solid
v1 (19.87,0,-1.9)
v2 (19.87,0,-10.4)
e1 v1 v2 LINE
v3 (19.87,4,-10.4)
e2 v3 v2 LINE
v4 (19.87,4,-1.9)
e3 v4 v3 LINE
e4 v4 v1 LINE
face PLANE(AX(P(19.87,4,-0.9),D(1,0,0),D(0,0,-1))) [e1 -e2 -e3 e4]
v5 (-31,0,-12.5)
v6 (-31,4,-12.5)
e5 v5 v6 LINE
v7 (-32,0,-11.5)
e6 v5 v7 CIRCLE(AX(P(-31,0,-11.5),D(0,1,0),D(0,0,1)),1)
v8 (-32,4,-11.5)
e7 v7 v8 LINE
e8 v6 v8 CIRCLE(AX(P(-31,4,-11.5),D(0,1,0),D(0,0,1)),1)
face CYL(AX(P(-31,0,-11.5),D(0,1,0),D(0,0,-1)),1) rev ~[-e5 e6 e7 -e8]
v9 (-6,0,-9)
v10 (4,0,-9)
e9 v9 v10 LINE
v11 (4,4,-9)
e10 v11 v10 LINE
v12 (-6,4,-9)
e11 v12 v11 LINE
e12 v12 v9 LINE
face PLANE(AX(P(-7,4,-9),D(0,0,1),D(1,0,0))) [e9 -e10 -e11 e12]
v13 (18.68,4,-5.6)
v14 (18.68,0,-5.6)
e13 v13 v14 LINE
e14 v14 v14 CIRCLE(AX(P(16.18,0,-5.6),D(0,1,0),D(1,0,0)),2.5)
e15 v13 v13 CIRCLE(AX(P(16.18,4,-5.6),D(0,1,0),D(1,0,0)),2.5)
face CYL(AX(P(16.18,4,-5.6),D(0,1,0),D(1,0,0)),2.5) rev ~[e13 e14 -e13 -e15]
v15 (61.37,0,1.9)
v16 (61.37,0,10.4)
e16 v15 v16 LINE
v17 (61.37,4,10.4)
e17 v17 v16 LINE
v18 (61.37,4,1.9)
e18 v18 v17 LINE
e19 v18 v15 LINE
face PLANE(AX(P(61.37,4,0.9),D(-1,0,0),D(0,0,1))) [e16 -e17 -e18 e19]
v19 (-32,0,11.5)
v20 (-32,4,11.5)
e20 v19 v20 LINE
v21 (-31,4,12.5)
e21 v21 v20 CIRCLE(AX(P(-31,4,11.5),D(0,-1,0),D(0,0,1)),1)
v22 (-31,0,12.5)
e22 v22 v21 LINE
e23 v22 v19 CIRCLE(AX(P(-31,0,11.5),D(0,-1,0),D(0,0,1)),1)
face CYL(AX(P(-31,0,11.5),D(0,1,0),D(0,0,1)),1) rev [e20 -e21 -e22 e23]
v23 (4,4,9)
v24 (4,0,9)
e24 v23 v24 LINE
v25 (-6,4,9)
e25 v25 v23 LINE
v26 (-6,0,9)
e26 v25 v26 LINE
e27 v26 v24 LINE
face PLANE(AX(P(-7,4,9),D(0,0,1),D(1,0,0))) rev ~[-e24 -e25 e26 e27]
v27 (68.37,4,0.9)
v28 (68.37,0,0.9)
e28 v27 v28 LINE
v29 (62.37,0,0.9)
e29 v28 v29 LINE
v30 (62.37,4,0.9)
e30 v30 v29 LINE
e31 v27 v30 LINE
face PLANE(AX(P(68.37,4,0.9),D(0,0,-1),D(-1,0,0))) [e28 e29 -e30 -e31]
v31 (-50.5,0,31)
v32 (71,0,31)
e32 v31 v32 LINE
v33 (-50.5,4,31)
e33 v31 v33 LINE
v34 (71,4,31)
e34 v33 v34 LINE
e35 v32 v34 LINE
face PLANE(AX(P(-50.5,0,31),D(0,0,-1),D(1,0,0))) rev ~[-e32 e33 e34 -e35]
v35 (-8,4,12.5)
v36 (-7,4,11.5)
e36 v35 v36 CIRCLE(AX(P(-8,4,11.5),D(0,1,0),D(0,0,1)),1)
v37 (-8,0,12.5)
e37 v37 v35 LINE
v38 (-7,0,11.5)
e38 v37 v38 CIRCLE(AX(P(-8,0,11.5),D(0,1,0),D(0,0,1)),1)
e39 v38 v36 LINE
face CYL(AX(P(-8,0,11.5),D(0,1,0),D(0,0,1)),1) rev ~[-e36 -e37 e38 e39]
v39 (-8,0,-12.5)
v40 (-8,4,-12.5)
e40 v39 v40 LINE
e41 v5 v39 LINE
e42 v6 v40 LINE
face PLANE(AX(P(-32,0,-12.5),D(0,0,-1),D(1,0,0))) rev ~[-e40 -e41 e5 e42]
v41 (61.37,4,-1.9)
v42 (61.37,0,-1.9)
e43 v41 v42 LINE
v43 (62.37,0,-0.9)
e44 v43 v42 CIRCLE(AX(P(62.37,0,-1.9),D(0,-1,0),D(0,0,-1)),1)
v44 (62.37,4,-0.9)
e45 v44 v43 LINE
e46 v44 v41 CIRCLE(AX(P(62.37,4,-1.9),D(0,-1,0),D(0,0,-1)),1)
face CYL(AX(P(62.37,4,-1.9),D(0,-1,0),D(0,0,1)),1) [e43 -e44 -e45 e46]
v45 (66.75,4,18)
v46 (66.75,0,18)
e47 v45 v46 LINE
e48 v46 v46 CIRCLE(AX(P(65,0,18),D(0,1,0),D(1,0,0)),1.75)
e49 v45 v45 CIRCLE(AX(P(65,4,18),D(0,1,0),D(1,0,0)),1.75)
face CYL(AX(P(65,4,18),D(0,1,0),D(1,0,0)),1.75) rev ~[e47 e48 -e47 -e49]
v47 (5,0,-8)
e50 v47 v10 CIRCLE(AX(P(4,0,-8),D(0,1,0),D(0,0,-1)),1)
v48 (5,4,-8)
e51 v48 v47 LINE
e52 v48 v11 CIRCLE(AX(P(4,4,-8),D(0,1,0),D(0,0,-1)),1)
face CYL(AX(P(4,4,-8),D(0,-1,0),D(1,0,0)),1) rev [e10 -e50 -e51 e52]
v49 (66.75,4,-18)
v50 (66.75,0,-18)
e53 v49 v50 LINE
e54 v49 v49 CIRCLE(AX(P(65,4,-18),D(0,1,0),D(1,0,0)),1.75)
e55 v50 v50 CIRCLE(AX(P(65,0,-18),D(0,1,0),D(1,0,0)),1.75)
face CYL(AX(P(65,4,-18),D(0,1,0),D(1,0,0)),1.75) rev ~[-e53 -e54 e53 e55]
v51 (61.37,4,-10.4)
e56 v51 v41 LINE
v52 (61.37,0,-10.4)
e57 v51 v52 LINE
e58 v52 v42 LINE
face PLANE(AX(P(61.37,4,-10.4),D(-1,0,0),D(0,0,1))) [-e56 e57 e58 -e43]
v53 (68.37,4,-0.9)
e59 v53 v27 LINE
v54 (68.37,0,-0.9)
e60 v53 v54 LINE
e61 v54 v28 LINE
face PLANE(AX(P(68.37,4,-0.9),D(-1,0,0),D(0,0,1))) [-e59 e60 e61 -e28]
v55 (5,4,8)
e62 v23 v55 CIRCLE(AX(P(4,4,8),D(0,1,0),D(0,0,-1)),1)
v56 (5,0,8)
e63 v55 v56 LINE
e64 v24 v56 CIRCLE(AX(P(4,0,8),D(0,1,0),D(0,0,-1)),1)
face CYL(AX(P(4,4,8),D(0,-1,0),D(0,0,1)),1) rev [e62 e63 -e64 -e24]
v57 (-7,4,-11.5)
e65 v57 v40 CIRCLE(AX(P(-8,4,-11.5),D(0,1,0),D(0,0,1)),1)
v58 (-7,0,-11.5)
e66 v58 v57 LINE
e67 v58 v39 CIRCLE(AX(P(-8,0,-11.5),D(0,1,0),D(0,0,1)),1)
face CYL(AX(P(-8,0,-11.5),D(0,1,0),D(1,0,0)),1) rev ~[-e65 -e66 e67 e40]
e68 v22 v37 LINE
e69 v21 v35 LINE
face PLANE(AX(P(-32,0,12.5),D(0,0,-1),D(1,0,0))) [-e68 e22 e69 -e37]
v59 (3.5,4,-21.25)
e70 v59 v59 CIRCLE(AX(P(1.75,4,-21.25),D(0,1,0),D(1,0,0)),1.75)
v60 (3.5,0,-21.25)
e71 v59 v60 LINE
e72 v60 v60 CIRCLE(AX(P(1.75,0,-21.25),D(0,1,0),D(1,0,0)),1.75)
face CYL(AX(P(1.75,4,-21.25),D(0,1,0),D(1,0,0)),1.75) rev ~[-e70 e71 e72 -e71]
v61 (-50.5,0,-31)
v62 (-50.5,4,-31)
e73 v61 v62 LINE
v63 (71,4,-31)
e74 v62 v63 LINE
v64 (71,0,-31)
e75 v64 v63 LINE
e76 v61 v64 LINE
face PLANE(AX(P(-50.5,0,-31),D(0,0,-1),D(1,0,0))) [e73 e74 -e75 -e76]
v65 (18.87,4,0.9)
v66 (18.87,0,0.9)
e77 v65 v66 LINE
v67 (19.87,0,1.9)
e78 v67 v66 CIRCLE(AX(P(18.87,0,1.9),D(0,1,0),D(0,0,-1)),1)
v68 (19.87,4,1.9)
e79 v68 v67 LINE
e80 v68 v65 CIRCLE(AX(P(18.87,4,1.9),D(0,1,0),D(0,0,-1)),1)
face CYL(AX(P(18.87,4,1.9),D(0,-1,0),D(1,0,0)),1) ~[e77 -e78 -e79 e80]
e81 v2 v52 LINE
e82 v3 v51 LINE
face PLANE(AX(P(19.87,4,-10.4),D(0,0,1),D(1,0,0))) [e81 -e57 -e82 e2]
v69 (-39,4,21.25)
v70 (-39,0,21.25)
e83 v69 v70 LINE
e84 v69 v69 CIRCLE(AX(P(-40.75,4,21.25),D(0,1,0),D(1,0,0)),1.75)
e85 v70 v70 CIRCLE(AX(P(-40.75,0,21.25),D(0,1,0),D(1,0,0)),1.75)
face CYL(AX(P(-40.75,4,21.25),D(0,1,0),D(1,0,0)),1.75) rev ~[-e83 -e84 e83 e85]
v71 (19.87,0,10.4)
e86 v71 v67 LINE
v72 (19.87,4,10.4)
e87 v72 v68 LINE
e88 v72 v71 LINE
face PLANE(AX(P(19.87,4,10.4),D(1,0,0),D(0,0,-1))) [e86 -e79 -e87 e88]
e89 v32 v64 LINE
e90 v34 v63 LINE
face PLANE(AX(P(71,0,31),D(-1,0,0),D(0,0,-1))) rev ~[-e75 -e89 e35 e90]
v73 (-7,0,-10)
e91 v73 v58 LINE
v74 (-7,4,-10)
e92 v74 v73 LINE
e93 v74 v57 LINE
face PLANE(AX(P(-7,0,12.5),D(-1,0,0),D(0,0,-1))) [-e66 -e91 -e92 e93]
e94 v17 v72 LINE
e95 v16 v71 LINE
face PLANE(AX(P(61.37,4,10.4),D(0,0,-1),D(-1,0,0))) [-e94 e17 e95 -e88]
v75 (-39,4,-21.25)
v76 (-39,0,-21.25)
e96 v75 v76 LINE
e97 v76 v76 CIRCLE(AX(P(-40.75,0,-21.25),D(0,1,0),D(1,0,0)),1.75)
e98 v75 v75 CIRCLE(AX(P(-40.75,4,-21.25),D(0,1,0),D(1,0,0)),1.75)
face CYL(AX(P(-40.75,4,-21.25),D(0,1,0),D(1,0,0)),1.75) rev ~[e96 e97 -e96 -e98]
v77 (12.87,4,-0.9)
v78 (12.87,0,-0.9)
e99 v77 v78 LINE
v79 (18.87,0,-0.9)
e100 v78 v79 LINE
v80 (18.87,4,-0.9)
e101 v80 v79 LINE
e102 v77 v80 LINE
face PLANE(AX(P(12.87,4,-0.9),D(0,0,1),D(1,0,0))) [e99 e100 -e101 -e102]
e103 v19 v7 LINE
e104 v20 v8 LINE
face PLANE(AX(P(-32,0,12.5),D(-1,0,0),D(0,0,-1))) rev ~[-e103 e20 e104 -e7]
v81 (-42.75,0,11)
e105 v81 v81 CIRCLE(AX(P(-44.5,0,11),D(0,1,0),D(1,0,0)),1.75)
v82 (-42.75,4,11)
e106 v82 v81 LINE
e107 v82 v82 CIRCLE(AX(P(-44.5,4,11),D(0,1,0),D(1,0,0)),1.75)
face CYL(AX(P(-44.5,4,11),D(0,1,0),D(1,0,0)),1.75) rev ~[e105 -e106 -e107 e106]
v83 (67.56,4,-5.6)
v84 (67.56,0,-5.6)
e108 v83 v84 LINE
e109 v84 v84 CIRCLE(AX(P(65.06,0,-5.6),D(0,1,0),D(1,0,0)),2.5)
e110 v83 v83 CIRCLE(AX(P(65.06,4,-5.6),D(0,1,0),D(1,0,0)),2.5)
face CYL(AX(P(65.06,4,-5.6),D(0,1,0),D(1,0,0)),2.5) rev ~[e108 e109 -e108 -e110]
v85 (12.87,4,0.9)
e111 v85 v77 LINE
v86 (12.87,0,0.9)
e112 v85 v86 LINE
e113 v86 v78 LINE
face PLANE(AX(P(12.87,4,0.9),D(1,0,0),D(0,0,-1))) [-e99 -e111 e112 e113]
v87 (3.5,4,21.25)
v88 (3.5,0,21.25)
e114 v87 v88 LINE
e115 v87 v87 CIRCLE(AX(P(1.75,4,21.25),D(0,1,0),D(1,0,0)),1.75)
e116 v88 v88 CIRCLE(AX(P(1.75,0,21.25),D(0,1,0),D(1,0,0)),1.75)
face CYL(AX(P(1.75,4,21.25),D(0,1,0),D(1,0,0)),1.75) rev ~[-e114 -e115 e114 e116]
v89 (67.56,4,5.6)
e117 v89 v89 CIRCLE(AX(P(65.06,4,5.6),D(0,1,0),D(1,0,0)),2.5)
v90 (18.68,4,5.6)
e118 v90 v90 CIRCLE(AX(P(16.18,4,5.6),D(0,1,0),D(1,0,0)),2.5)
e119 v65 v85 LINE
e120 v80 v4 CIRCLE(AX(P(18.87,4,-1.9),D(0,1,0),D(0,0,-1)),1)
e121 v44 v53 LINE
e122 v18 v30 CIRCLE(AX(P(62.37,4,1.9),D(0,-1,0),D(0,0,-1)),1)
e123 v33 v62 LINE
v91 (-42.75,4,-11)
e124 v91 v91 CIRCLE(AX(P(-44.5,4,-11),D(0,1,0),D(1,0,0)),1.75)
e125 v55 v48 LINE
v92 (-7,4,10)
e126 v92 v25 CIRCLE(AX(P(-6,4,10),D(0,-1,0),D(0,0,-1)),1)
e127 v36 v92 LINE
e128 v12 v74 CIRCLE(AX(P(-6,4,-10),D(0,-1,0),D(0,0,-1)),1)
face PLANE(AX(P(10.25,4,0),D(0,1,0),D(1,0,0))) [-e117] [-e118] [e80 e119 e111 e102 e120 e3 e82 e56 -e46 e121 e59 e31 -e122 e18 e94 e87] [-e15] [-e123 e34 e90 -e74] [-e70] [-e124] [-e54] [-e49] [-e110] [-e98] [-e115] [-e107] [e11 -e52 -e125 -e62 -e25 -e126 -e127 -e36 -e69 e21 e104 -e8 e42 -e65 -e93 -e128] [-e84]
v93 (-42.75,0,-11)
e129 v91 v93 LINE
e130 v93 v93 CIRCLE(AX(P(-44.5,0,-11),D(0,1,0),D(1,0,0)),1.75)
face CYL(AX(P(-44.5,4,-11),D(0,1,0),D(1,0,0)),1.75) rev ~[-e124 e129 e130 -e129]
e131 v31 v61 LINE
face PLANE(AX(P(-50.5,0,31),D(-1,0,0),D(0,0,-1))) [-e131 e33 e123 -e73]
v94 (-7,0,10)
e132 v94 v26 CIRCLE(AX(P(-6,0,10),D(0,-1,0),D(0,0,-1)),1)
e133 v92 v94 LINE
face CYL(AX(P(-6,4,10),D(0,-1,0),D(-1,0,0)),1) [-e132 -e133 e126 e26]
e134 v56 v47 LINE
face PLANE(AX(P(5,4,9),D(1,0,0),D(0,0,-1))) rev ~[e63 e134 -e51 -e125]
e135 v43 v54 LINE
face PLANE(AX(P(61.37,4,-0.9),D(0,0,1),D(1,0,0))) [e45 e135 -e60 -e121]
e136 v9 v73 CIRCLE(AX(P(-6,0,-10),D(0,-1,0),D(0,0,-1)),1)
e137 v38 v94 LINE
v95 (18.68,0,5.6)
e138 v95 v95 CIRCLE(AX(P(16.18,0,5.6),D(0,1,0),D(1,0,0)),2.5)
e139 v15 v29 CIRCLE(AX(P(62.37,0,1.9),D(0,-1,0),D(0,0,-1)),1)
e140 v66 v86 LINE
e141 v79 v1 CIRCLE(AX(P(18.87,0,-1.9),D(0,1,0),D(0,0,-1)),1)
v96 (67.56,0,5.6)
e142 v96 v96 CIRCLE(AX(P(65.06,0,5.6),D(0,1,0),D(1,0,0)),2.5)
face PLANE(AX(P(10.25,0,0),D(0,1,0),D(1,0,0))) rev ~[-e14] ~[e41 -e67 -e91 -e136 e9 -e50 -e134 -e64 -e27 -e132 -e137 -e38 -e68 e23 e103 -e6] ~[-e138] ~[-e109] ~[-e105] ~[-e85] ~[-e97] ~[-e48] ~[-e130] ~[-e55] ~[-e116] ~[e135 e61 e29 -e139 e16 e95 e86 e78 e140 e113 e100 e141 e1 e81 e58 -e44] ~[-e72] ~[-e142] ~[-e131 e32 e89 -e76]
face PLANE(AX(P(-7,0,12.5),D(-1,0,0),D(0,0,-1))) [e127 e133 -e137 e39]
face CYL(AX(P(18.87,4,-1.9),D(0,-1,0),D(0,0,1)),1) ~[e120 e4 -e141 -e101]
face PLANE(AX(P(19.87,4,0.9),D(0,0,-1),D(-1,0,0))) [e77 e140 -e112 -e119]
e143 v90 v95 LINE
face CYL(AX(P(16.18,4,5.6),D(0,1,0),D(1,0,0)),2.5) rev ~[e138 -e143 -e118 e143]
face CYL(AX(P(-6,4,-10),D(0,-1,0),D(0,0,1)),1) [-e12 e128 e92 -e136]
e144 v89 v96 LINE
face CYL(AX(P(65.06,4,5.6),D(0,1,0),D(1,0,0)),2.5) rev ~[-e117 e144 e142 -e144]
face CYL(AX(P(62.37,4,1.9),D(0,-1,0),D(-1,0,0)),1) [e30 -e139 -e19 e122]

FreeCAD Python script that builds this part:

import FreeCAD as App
import Part
import Sketcher


def edges_at(feature, points):
    """Names of the edges that pass closest to the given points."""
    edges = feature.Shape.Edges
    near = lambda p: min(range(len(edges)), key=lambda i: edges[i].distToShape(Part.Vertex(*p))[0])
    return sorted({f"Edge{near(p) + 1}" for p in points})


def add_polygon(sketch, points):
    """Adds a closed chain of lines whose ends are joined by coincident constraints."""
    first, n = sketch.GeometryCount, len(points)
    for a, b in zip(points, points[1:] + points[:1]):
        sketch.addGeometry(Part.LineSegment(App.Vector(*a, 0), App.Vector(*b, 0)), False)
    for i in range(n):
        sketch.addConstraint(Sketcher.Constraint("Coincident", first + i, 2, first + (i + 1) % n, 1))

doc = App.newDocument("Part")
body = doc.addObject("PartDesign::Body", "Body")

sketch1 = body.newObject("Sketcher::SketchObject", "Sketch")
sketch1.AttachmentSupport = (doc.getObject("XZ_Plane"), [""])
sketch1.MapMode = "FlatFace"
add_polygon(sketch1, [(-50, -31), (-50, 31), (71, 31), (71, -31)])
add_polygon(sketch1, [(-7, 12), (-32, 12), (-32, -12), (-7, -12)])
sketch1.addConstraint(Sketcher.Constraint("Vertical", 0))
sketch1.addConstraint(Sketcher.Constraint("Horizontal", 1))
sketch1.addConstraint(Sketcher.Constraint("Vertical", 2))
sketch1.addConstraint(Sketcher.Constraint("Horizontal", 3))
sketch1.addConstraint(Sketcher.Constraint("Horizontal", 4))
sketch1.addConstraint(Sketcher.Constraint("Vertical", 5))
sketch1.addConstraint(Sketcher.Constraint("Horizontal", 6))
sketch1.addConstraint(Sketcher.Constraint("Vertical", 7))
sketch1.addConstraint(Sketcher.Constraint("Equal", 6, 5))
sketch1.addConstraint(Sketcher.Constraint("DistanceX", 4, 2, 4, 1, 25.0))
sketch1.addConstraint(Sketcher.Constraint("DistanceY", 0, 1, 0, 2, 62.0))
sketch1.addConstraint(Sketcher.Constraint("DistanceX", 1, 1, 1, 2, 121.5))
sketch1.addConstraint(Sketcher.Constraint("DistanceY", -1, 1, 0, 2, 31.0))
sketch1.addConstraint(Sketcher.Constraint("DistanceX", -1, 1, 1, 2, 71.0))
sketch1.addConstraint(Sketcher.Constraint("DistanceX", 4, 2, -1, 1, 32.0))
sketch1.addConstraint(Sketcher.Constraint("DistanceY", -1, 1, 4, 2, 12.5))
pad1 = body.newObject("PartDesign::Pad", "Pad")
pad1.Profile = sketch1
pad1.Length = 4
pad1.Reversed = True

sketch2 = body.newObject("Sketcher::SketchObject", "Sketch001")
sketch2.AttachmentSupport = (doc.getObject("XZ_Plane"), [""])
sketch2.MapMode = "FlatFace"
sketch2.AttachmentOffset = App.Placement(App.Vector(0, 0, -4), App.Rotation())
sketch2.addGeometry(Part.Circle(App.Vector(16.2, -5.6, 0), App.Vector(0, 0, 1), 2.5), False)
sketch2.addGeometry(Part.Circle(App.Vector(16.2, 5.6, 0), App.Vector(0, 0, 1), 2.5), False)
sketch2.addGeometry(Part.Circle(App.Vector(65.1, 5.6, 0), App.Vector(0, 0, 1), 2.5), False)
sketch2.addGeometry(Part.Circle(App.Vector(65.1, -5.6, 0), App.Vector(0, 0, 1), 2.5), False)
add_polygon(sketch2, [(12.9, 0.9), (19.9, 0.9), (19.9, 10.4), (61.4, 10.4), (61.4, 0.9), (68.4, 0.9), (68.4, -0.9), (61.4, -0.9), (61.4, -10.4), (19.9, -10.4), (19.9, -0.9), (12.9, -0.9)])
sketch2.addConstraint(Sketcher.Constraint("Horizontal", 4))
sketch2.addConstraint(Sketcher.Constraint("Vertical", 5))
sketch2.addConstraint(Sketcher.Constraint("Horizontal", 6))
sketch2.addConstraint(Sketcher.Constraint("Vertical", 7))
sketch2.addConstraint(Sketcher.Constraint("Horizontal", 8))
sketch2.addConstraint(Sketcher.Constraint("Vertical", 9))
sketch2.addConstraint(Sketcher.Constraint("Horizontal", 10))
sketch2.addConstraint(Sketcher.Constraint("Vertical", 11))
sketch2.addConstraint(Sketcher.Constraint("Horizontal", 12))
sketch2.addConstraint(Sketcher.Constraint("Vertical", 13))
sketch2.addConstraint(Sketcher.Constraint("Horizontal", 14))
sketch2.addConstraint(Sketcher.Constraint("Vertical", 15))
sketch2.addConstraint(Sketcher.Constraint("Equal", 0, 1))
sketch2.addConstraint(Sketcher.Constraint("Equal", 1, 2))
sketch2.addConstraint(Sketcher.Constraint("Equal", 2, 3))
sketch2.addConstraint(Sketcher.Constraint("Symmetric", 0, 3, 1, 3, -1))
sketch2.addConstraint(Sketcher.Constraint("Symmetric", 2, 3, 3, 3, -1))
sketch2.addConstraint(Sketcher.Constraint("Symmetric", 7, 2, 10, 2, -1))
sketch2.addConstraint(Sketcher.Constraint("Symmetric", 5, 2, 12, 2, -1))
sketch2.addConstraint(Sketcher.Constraint("Horizontal", 1, 3, 2, 3))
sketch2.addConstraint(Sketcher.Constraint("Horizontal", 4, 2, 7, 2))
sketch2.addConstraint(Sketcher.Constraint("Horizontal", 10, 2, 13, 2))
sketch2.addConstraint(Sketcher.Constraint("Equal", 4, 8))
sketch2.addConstraint(Sketcher.Constraint("Diameter", 0, 5.0))
sketch2.addConstraint(Sketcher.Constraint("DistanceX", 4, 1, 4, 2, 7.0))
sketch2.addConstraint(Sketcher.Constraint("DistanceX", 6, 1, 6, 2, 41.5))
sketch2.addConstraint(Sketcher.Constraint("DistanceY", 5, 1, 5, 2, 9.5))
sketch2.addConstraint(Sketcher.Constraint("DistanceY", 9, 2, 9, 1, 1.8))
sketch2.addConstraint(Sketcher.Constraint("DistanceY", 0, 3, 5, 2, 16.0))
sketch2.addConstraint(Sketcher.Constraint("DistanceX", -1, 1, 0, 3, 16.18))
sketch2.addConstraint(Sketcher.Constraint("DistanceX", -1, 1, 2, 3, 65.06))
sketch2.addConstraint(Sketcher.Constraint("DistanceX", -1, 1, 4, 2, 19.87))
pocket1 = body.newObject("PartDesign::Pocket", "Pocket")
pocket1.Profile = sketch2
pocket1.Type = "ThroughAll"
pocket1.Reversed = True

sketch3 = body.newObject("Sketcher::SketchObject", "Sketch002")
sketch3.AttachmentSupport = (doc.getObject("XZ_Plane"), [""])
sketch3.MapMode = "FlatFace"
sketch3.AttachmentOffset = App.Placement(App.Vector(0, 0, -4), App.Rotation())
sketch3.addGeometry(Part.Circle(App.Vector(-40.8, 21.2, 0), App.Vector(0, 0, 1), 1.8), False)
sketch3.addGeometry(Part.Circle(App.Vector(-44.5, 11, 0), App.Vector(0, 0, 1), 1.8), False)
sketch3.addGeometry(Part.Circle(App.Vector(1.8, 21.2, 0), App.Vector(0, 0, 1), 1.8), False)
sketch3.addGeometry(Part.Circle(App.Vector(1.8, -21.2, 0), App.Vector(0, 0, 1), 1.8), False)
sketch3.addGeometry(Part.Circle(App.Vector(65, -18, 0), App.Vector(0, 0, 1), 1.8), False)
sketch3.addGeometry(Part.Circle(App.Vector(65, 18, 0), App.Vector(0, 0, 1), 1.8), False)
sketch3.addGeometry(Part.Circle(App.Vector(-44.5, -11, 0), App.Vector(0, 0, 1), 1.8), False)
sketch3.addGeometry(Part.Circle(App.Vector(-40.8, -21.2, 0), App.Vector(0, 0, 1), 1.8), False)
sketch3.addConstraint(Sketcher.Constraint("Equal", 0, 1))
sketch3.addConstraint(Sketcher.Constraint("Equal", 1, 2))
sketch3.addConstraint(Sketcher.Constraint("Equal", 2, 3))
sketch3.addConstraint(Sketcher.Constraint("Equal", 3, 4))
sketch3.addConstraint(Sketcher.Constraint("Equal", 4, 5))
sketch3.addConstraint(Sketcher.Constraint("Equal", 5, 6))
sketch3.addConstraint(Sketcher.Constraint("Equal", 6, 7))
sketch3.addConstraint(Sketcher.Constraint("Symmetric", 2, 3, 3, 3, -1))
sketch3.addConstraint(Sketcher.Constraint("Symmetric", 4, 3, 5, 3, -1))
sketch3.addConstraint(Sketcher.Constraint("Symmetric", 1, 3, 6, 3, -1))
sketch3.addConstraint(Sketcher.Constraint("Symmetric", 0, 3, 7, 3, -1))
sketch3.addConstraint(Sketcher.Constraint("Horizontal", 0, 3, 2, 3))
sketch3.addConstraint(Sketcher.Constraint("Diameter", 0, 3.5))
sketch3.addConstraint(Sketcher.Constraint("DistanceY", -1, 1, 1, 3, 11.0))
sketch3.addConstraint(Sketcher.Constraint("DistanceX", -1, 1, 4, 3, 65.0))
sketch3.addConstraint(Sketcher.Constraint("DistanceY", 4, 3, -1, 1, 18.0))
sketch3.addConstraint(Sketcher.Constraint("DistanceX", 1, 3, -1, 1, 44.5))
sketch3.addConstraint(Sketcher.Constraint("DistanceX", 0, 3, 2, 3, 42.5))
sketch3.addConstraint(Sketcher.Constraint("DistanceY", 3, 3, 2, 3, 42.5))
sketch3.addConstraint(Sketcher.Constraint("DistanceX", 0, 3, -1, 1, 40.75))
pocket2 = body.newObject("PartDesign::Pocket", "Pocket001")
pocket2.Profile = sketch3
pocket2.Type = "ThroughAll"
pocket2.Reversed = True

sketch4 = body.newObject("Sketcher::SketchObject", "Sketch003")
sketch4.AttachmentSupport = (doc.getObject("XZ_Plane"), [""])
sketch4.MapMode = "FlatFace"
sketch4.AttachmentOffset = App.Placement(App.Vector(0, 0, -4), App.Rotation())
add_polygon(sketch4, [(-7, -9), (-7, 9), (5, 9), (5, -9)])
sketch4.addConstraint(Sketcher.Constraint("Vertical", 0))
sketch4.addConstraint(Sketcher.Constraint("Horizontal", 1))
sketch4.addConstraint(Sketcher.Constraint("Vertical", 2))
sketch4.addConstraint(Sketcher.Constraint("Horizontal", 3))
sketch4.addConstraint(Sketcher.Constraint("DistanceX", 1, 1, 1, 2, 12.0))
sketch4.addConstraint(Sketcher.Constraint("DistanceY", 0, 1, 0, 2, 18.0))
sketch4.addConstraint(Sketcher.Constraint("DistanceX", 0, 2, -1, 1, 7.0))
sketch4.addConstraint(Sketcher.Constraint("DistanceY", -1, 1, 0, 2, 9.0))
pocket3 = body.newObject("PartDesign::Pocket", "Pocket002")
pocket3.Profile = sketch4
pocket3.Type = "ThroughAll"
pocket3.Reversed = True
doc.recompute()

fillet = body.newObject("PartDesign::Fillet", "Fillet")
fillet.Base = (pocket3, edges_at(pocket3, [
    (-7, 2, 9),
    (-7, 2, -9),
    (5, 2, -9),
    (5, 2, 9),
    (-32, 2, -12.5),
    (-32, 2, 12.5),
    (-7, 2, 12.5),
    (-7, 2, -12.5),
    (19.87, 2, -0.9),
    (61.37, 2, -0.9),
    (61.37, 2, 0.9),
    (19.87, 2, 0.9),
]))
fillet.Radius = 1

doc.recompute()
